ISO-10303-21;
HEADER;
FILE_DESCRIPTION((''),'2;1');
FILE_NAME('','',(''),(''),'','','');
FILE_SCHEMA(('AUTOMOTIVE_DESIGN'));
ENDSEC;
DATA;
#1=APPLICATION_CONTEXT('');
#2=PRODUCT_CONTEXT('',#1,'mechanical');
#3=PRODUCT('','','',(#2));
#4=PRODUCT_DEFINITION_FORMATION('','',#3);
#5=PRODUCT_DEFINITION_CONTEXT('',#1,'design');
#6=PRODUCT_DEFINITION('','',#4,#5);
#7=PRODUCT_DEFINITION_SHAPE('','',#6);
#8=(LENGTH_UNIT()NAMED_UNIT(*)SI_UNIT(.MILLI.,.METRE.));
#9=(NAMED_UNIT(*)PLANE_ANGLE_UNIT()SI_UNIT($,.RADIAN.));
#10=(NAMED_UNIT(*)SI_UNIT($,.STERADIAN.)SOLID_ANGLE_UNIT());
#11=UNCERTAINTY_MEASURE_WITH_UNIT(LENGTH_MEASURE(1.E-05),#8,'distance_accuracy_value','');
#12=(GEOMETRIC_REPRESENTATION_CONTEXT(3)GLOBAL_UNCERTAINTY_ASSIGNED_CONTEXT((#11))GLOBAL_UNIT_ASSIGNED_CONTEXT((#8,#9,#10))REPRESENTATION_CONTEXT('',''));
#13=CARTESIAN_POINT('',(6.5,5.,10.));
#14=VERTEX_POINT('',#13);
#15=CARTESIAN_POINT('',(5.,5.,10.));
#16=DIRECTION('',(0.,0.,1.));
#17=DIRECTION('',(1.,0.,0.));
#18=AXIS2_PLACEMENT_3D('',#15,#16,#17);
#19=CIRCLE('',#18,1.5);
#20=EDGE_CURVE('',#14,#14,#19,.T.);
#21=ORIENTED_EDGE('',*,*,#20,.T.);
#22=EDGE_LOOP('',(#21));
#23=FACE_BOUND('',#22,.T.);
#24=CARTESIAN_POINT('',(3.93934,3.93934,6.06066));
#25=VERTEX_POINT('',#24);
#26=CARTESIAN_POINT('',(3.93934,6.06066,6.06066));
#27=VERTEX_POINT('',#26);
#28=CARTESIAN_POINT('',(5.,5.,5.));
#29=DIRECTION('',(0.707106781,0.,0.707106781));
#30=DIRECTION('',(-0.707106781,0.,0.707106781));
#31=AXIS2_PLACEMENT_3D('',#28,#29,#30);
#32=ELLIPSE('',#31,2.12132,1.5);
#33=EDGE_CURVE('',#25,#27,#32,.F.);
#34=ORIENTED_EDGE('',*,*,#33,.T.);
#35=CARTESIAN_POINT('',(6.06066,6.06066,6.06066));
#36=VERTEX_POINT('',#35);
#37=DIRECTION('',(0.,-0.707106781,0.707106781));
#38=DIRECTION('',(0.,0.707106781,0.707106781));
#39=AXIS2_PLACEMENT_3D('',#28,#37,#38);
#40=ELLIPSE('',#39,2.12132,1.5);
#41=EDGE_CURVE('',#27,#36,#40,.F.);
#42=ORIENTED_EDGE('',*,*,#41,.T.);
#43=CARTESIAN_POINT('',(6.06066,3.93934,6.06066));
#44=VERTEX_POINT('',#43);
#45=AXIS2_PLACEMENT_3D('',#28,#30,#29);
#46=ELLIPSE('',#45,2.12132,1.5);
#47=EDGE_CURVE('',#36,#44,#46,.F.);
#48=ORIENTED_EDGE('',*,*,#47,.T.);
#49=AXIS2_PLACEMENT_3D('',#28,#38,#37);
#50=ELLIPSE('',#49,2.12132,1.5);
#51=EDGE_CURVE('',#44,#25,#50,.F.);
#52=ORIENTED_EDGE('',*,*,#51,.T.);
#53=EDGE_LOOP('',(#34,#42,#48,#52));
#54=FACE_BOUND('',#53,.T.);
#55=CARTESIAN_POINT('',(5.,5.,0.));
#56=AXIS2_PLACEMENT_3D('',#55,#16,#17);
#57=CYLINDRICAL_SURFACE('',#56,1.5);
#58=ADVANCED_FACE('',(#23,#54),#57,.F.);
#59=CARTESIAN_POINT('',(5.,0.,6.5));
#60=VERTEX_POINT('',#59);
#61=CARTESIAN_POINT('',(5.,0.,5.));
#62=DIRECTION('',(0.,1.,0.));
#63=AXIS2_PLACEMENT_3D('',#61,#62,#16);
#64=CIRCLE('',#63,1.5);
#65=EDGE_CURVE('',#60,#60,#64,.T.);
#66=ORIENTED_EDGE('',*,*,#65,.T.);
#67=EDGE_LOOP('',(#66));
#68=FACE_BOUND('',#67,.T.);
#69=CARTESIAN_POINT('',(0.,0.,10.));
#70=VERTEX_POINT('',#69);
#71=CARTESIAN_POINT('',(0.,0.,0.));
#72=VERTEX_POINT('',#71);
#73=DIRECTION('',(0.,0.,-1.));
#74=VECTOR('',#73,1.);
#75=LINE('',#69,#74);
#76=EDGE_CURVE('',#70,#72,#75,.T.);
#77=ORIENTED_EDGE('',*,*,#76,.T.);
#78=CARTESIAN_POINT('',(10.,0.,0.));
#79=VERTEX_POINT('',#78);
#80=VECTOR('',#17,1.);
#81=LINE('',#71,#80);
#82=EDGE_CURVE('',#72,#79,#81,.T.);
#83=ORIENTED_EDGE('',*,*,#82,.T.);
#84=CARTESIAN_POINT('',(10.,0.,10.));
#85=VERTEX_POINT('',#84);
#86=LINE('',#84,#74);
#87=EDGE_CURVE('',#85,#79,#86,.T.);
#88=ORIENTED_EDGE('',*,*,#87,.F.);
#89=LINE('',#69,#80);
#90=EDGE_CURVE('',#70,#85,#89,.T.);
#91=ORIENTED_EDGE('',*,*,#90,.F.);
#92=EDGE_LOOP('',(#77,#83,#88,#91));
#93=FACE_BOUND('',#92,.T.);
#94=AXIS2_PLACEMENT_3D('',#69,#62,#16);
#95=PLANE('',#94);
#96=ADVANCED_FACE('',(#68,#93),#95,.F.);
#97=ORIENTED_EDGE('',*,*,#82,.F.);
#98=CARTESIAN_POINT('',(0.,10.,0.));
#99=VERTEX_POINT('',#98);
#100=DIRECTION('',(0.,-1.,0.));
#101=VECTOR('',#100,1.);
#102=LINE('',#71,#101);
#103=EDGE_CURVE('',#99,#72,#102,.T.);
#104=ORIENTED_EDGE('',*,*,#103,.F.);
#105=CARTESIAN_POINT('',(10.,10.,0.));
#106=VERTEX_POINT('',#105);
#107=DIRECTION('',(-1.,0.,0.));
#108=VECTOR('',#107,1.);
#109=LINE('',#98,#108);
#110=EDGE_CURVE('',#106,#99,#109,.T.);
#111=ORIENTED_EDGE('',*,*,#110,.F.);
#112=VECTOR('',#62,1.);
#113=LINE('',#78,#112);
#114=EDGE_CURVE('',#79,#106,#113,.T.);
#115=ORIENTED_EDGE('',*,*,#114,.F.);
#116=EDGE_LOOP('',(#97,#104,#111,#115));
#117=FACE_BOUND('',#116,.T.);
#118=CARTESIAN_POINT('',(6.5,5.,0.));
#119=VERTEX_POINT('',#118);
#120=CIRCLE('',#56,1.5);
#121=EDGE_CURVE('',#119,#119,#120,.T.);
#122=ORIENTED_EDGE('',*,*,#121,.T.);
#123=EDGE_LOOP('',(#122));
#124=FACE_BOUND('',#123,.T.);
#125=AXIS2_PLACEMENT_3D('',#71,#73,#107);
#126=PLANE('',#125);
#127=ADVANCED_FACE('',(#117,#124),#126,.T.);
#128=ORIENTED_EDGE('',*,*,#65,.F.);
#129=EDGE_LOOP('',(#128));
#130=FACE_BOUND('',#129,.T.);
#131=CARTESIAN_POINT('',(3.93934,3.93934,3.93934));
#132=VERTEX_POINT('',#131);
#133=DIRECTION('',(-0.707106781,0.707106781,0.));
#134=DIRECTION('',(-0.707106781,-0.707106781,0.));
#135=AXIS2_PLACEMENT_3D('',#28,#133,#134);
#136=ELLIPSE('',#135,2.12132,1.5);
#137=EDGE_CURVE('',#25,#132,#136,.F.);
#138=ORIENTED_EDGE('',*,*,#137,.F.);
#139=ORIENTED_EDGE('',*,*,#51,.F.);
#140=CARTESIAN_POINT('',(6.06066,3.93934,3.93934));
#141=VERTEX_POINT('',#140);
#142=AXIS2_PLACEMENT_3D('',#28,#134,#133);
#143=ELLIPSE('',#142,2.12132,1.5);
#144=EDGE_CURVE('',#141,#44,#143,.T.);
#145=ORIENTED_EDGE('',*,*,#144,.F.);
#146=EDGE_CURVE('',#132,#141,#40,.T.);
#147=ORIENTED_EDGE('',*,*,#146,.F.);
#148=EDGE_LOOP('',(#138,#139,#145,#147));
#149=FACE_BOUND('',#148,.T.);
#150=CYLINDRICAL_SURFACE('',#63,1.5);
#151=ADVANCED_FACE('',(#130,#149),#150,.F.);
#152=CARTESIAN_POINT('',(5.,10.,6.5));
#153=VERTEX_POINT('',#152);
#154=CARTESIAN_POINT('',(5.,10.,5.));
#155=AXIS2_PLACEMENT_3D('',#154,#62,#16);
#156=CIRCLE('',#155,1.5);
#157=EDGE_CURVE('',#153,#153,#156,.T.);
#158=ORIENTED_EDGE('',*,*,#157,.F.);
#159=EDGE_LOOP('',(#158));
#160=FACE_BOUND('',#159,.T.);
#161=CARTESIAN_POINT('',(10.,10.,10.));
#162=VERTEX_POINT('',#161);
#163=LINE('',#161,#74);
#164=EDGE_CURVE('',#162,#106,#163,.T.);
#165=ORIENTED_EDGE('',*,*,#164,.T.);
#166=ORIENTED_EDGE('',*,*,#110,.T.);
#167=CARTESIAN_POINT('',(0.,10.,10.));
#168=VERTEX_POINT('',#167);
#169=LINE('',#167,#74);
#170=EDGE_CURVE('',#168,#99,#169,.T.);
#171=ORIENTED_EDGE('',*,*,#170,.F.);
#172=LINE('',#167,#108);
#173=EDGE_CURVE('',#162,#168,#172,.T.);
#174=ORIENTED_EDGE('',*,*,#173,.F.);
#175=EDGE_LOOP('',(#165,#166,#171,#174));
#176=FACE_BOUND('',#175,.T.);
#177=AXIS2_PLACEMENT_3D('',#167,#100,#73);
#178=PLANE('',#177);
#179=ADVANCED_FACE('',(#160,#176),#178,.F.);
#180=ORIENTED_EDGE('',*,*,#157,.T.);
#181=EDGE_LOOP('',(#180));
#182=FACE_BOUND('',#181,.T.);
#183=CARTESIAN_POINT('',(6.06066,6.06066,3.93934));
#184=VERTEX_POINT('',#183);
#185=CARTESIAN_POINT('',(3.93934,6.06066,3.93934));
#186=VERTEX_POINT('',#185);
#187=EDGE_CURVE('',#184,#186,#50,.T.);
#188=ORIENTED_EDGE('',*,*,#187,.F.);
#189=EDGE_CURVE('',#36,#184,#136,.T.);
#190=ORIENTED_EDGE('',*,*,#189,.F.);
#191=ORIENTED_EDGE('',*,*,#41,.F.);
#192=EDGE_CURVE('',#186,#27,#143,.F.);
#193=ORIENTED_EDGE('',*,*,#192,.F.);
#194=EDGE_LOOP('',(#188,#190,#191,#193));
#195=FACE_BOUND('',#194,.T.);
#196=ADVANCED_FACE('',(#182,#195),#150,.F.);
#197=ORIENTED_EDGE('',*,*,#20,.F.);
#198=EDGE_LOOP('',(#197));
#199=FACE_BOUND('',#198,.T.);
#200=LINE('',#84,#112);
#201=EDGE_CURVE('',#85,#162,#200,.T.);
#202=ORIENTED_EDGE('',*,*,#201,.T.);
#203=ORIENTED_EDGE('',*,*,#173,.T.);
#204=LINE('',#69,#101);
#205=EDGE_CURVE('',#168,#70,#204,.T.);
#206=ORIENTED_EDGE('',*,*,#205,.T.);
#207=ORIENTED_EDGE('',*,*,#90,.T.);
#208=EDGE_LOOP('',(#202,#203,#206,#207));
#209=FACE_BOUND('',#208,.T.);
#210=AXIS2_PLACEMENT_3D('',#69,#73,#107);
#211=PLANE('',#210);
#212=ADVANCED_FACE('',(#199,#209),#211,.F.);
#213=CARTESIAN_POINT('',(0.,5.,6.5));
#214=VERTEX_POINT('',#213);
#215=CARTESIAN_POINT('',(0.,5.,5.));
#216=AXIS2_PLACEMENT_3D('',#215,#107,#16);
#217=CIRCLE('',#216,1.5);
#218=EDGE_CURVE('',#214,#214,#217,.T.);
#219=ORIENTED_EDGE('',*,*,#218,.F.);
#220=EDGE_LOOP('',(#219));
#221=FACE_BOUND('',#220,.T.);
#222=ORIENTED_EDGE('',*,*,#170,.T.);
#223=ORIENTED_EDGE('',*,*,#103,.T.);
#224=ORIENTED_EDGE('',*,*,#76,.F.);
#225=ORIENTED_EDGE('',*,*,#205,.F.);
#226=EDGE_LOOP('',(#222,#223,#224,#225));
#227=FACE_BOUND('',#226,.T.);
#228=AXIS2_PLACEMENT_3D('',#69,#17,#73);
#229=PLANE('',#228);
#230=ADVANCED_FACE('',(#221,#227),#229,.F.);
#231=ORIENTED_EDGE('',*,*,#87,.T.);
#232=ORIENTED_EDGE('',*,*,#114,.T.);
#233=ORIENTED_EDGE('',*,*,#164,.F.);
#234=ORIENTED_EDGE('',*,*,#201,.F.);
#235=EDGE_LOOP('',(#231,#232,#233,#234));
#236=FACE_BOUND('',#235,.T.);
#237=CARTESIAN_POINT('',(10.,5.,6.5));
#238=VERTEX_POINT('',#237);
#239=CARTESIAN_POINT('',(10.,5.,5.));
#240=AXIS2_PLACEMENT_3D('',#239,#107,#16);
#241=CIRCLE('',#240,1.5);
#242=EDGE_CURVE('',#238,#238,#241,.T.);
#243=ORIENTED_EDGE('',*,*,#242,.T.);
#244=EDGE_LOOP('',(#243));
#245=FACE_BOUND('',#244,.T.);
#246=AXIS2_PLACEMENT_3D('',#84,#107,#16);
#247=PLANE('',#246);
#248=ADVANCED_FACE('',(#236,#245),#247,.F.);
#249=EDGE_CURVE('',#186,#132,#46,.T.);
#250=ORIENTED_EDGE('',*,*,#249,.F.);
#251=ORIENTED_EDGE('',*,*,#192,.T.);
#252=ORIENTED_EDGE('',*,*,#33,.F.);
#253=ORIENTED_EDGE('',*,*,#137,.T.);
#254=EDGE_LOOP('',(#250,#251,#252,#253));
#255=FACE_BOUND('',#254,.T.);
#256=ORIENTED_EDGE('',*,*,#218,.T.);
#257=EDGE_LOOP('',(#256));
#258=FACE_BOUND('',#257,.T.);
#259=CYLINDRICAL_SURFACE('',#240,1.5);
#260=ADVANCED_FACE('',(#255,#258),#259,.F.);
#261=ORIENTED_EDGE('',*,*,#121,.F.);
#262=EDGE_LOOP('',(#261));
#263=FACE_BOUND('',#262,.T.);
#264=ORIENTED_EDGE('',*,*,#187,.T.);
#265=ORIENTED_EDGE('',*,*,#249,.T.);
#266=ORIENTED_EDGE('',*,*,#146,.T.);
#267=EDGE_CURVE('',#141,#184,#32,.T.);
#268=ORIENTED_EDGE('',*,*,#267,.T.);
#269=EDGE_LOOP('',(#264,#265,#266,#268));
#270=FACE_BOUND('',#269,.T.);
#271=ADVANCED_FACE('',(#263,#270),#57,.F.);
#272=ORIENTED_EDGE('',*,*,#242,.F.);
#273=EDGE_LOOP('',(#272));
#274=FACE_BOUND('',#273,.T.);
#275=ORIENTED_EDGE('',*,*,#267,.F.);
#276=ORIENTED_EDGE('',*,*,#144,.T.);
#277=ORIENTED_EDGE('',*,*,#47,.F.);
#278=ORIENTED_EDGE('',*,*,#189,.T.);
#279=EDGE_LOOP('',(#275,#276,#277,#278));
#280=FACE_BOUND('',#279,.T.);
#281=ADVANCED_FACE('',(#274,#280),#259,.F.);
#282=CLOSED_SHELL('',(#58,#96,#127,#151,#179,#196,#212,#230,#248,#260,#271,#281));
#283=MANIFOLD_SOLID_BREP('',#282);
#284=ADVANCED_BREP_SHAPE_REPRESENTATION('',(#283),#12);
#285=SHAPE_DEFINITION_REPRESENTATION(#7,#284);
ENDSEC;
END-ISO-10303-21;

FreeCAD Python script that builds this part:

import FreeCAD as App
import Part
import Sketcher

V = App.Vector

doc = App.newDocument("Part")
body = doc.addObject("PartDesign::Body", "Body")

# Sketch on XY plane
sketch1 = body.newObject("Sketcher::SketchObject", "Sketch")
sketch1.AttachmentSupport = (doc.getObject("XY_Plane"), [""])
sketch1.MapMode = "FlatFace"
sketch1.addGeometry([
    Part.LineSegment(V(0, 10, 0), V(0, 0, 0)),
    Part.LineSegment(V(0, 0, 0), V(10, 0, 0)),
    Part.LineSegment(V(10, 0, 0), V(10, 10, 0)),
    Part.LineSegment(V(10, 10, 0), V(0, 10, 0)),
], False)
sketch1.addConstraint([
    Sketcher.Constraint("Coincident", 0, 2, 1, 1),
    Sketcher.Constraint("Coincident", 1, 2, 2, 1),
    Sketcher.Constraint("Coincident", 2, 2, 3, 1),
    Sketcher.Constraint("Coincident", 3, 2, 0, 1),
    Sketcher.Constraint("Vertical", 0),
    Sketcher.Constraint("Horizontal", 1),
    Sketcher.Constraint("Vertical", 2),
    Sketcher.Constraint("Horizontal", 3),
    Sketcher.Constraint("Coincident", 0, 2, -1, 1),
    Sketcher.Constraint("Equal", 3, 0),
    Sketcher.Constraint("DistanceX", 1, 1, 1, 2, 10.0),
])
pad1 = body.newObject("PartDesign::Pad", "Pad")
pad1.Profile = sketch1
pad1.Length = 10

# Sketch on XY plane
sketch2 = body.newObject("Sketcher::SketchObject", "Sketch001")
sketch2.AttachmentSupport = (doc.getObject("XY_Plane"), [""])
sketch2.MapMode = "FlatFace"
sketch2.AttachmentOffset = App.Placement(V(0, 0, 10), App.Rotation())
sketch2.addGeometry(Part.Circle(V(5, 5, 0), V(0, 0, 1), 1.5), False)
sketch2.addConstraint([
    Sketcher.Constraint("Diameter", 0, 3.0),
    Sketcher.Constraint("DistanceX", -1, 1, 0, 3, 5.0),
    Sketcher.Constraint("DistanceY", -1, 1, 0, 3, 5.0),
])
pocket1 = body.newObject("PartDesign::Pocket", "Pocket")
pocket1.Profile = sketch2
pocket1.Type = "ThroughAll"

# Sketch on YZ plane
sketch3 = body.newObject("Sketcher::SketchObject", "Sketch002")
sketch3.AttachmentSupport = (doc.getObject("YZ_Plane"), [""])
sketch3.MapMode = "FlatFace"
sketch3.addGeometry(Part.Circle(V(5, 5, 0), V(0, 0, 1), 1.5), False)
sketch3.addConstraint([
    Sketcher.Constraint("Diameter", 0, 3.0),
    Sketcher.Constraint("DistanceX", -1, 1, 0, 3, 5.0),
    Sketcher.Constraint("DistanceY", -1, 1, 0, 3, 5.0),
])
pocket2 = body.newObject("PartDesign::Pocket", "Pocket001")
pocket2.Profile = sketch3
pocket2.Type = "ThroughAll"
pocket2.Reversed = True

# Sketch on XZ plane
sketch4 = body.newObject("Sketcher::SketchObject", "Sketch003")
sketch4.AttachmentSupport = (doc.getObject("XZ_Plane"), [""])
sketch4.MapMode = "FlatFace"
sketch4.AttachmentOffset = App.Placement(V(0, 0, -10), App.Rotation())
sketch4.addGeometry(Part.Circle(V(5, 5, 0), V(0, 0, 1), 1.5), False)
sketch4.addConstraint([
    Sketcher.Constraint("Diameter", 0, 3.0),
    Sketcher.Constraint("DistanceX", -1, 1, 0, 3, 5.0),
    Sketcher.Constraint("DistanceY", -1, 1, 0, 3, 5.0),
])
pocket3 = body.newObject("PartDesign::Pocket", "Pocket002")
pocket3.Profile = sketch4
pocket3.Type = "ThroughAll"
pocket3.Reversed = True

doc.recompute()
